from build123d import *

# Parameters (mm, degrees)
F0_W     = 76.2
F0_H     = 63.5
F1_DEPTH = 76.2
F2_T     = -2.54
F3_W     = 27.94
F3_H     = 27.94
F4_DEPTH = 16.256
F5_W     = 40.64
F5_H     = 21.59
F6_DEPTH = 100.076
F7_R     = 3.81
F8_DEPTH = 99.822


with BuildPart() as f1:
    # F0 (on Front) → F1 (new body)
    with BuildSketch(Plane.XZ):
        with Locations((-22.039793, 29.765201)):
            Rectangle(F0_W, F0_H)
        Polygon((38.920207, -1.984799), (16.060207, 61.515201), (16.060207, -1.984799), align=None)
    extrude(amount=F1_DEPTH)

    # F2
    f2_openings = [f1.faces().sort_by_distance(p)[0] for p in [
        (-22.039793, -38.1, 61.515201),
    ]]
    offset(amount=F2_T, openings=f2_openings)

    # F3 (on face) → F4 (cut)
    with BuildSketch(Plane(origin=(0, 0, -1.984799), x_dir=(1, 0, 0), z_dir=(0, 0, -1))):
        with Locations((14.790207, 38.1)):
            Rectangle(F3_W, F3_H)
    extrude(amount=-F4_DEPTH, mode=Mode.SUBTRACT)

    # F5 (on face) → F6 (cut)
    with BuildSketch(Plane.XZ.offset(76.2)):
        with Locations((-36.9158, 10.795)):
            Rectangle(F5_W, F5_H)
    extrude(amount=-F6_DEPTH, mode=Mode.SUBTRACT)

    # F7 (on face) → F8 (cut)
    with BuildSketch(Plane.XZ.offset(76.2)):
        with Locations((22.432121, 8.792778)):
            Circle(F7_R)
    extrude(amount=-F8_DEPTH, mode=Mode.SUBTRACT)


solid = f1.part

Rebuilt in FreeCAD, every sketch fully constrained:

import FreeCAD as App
import Part
import Sketcher
Q = App.Units.Quantity


def faces_at(feature, points):
    """Names of the faces that lie closest to the given points."""
    faces = feature.Shape.Faces
    near = lambda p: min(range(len(faces)), key=lambda i: faces[i].distToShape(Part.Vertex(*p))[0])
    return sorted({f"Face{near(p) + 1}" for p in points})

doc = App.newDocument("Part")
body = doc.addObject("PartDesign::Body", "Body")

sketch1 = body.newObject("Sketcher::SketchObject", "Sketch")
sketch1.AttachmentSupport = (doc.getObject("XZ_Plane"), [""])
sketch1.MapMode = "FlatFace"
sketch1.addGeometry([
    Part.LineSegment(App.Vector(-60.139793, 61.515201, 0), App.Vector(-60.139793, -1.984799, 0)),
    Part.LineSegment(App.Vector(-60.139793, -1.984799, 0), App.Vector(38.920207, -1.984799, 0)),
    Part.LineSegment(App.Vector(38.920207, -1.984799, 0), App.Vector(16.060207, 61.515201, 0)),
    Part.LineSegment(App.Vector(16.060207, 61.515201, 0), App.Vector(-60.139793, 61.515201, 0)),
], False)
sketch1.addConstraint([
    Sketcher.Constraint("Coincident", 0, 2, 1, 1),
    Sketcher.Constraint("Coincident", 1, 2, 2, 1),
    Sketcher.Constraint("Coincident", 2, 2, 3, 1),
    Sketcher.Constraint("Coincident", 3, 2, 0, 1),
    Sketcher.Constraint("Vertical", 0),
    Sketcher.Constraint("Horizontal", 1),
    Sketcher.Constraint("Horizontal", 3),
    Sketcher.Constraint("DistanceX", 3, 2, 3, 1, Q("3 in")),
    Sketcher.Constraint("DistanceX", 1, 1, 1, 2, Q("3.9 in")),
    Sketcher.Constraint("DistanceY", 0, 2, 0, 1, Q("2.5 in")),
    Sketcher.Constraint("DistanceY", 0, 2, -1, 1, 1.984799),
    Sketcher.Constraint("DistanceX", 0, 2, -1, 1, 60.139793),
])
pad1 = body.newObject("PartDesign::Pad", "Pad")
pad1.Profile = sketch1
pad1.Length = Q("3 in")
doc.recompute()

thickness = body.newObject("PartDesign::Thickness", "Thickness")
thickness.Base = (pad1, faces_at(pad1, [(-22.04, -38.1, 61.515)]))
thickness.Value = Q("0.1 in")
thickness.Reversed = True
thickness.Join = "Arc"

sketch2 = body.newObject("Sketcher::SketchObject", "Sketch001")
sketch2.AttachmentSupport = (doc.getObject("XY_Plane"), [""])
sketch2.MapMode = "FlatFace"
sketch2.AttachmentOffset = App.Placement(App.Vector(0, 0, -1.984799), App.Rotation())
sketch2.addGeometry([
    Part.LineSegment(App.Vector(0.820207, -52.07, 0), App.Vector(0.820207, -24.13, 0)),
    Part.LineSegment(App.Vector(0.820207, -24.13, 0), App.Vector(28.760207, -24.13, 0)),
    Part.LineSegment(App.Vector(28.760207, -24.13, 0), App.Vector(28.760207, -52.07, 0)),
    Part.LineSegment(App.Vector(28.760207, -52.07, 0), App.Vector(0.820207, -52.07, 0)),
], False)
sketch2.addConstraint([
    Sketcher.Constraint("Coincident", 0, 2, 1, 1),
    Sketcher.Constraint("Coincident", 1, 2, 2, 1),
    Sketcher.Constraint("Coincident", 2, 2, 3, 1),
    Sketcher.Constraint("Coincident", 3, 2, 0, 1),
    Sketcher.Constraint("Vertical", 0),
    Sketcher.Constraint("Horizontal", 1),
    Sketcher.Constraint("Vertical", 2),
    Sketcher.Constraint("Horizontal", 3),
    Sketcher.Constraint("Equal", 3, 0),
    Sketcher.Constraint("DistanceX", 1, 1, 1, 2, Q("1.1 in")),
    Sketcher.Constraint("DistanceY", 0, 2, -1, 1, Q("0.95 in")),
    Sketcher.Constraint("DistanceX", -1, 1, 0, 2, 0.820207),
])
pocket1 = body.newObject("PartDesign::Pocket", "Pocket")
pocket1.Profile = sketch2
pocket1.Length = Q("0.64 in")
pocket1.Reversed = True

sketch3 = body.newObject("Sketcher::SketchObject", "Sketch002")
sketch3.AttachmentSupport = (doc.getObject("XZ_Plane"), [""])
sketch3.MapMode = "FlatFace"
sketch3.AttachmentOffset = App.Placement(App.Vector(0, 0, 3 * 25.4), App.Rotation())
sketch3.addGeometry([
    Part.LineSegment(App.Vector(-57.2358, 21.59, 0), App.Vector(-57.2358, 0, 0)),
    Part.LineSegment(App.Vector(-57.2358, 0, 0), App.Vector(-16.5958, 0, 0)),
    Part.LineSegment(App.Vector(-16.5958, 0, 0), App.Vector(-16.5958, 21.59, 0)),
    Part.LineSegment(App.Vector(-16.5958, 21.59, 0), App.Vector(-57.2358, 21.59, 0)),
], False)
sketch3.addConstraint([
    Sketcher.Constraint("Coincident", 0, 2, 1, 1),
    Sketcher.Constraint("Coincident", 1, 2, 2, 1),
    Sketcher.Constraint("Coincident", 2, 2, 3, 1),
    Sketcher.Constraint("Coincident", 3, 2, 0, 1),
    Sketcher.Constraint("Vertical", 0),
    Sketcher.Constraint("Horizontal", 1),
    Sketcher.Constraint("Vertical", 2),
    Sketcher.Constraint("Horizontal", 3),
    Sketcher.Constraint("PointOnObject", 0, 2, -1),
    Sketcher.Constraint("DistanceX", 1, 1, 1, 2, Q("1.6 in")),
    Sketcher.Constraint("DistanceY", 0, 2, 0, 1, Q("0.85 in")),
    Sketcher.Constraint("DistanceX", 0, 2, -1, 1, 57.2358),
])
pocket2 = body.newObject("PartDesign::Pocket", "Pocket001")
pocket2.Profile = sketch3
pocket2.Length = Q("3.94 in")

sketch4 = body.newObject("Sketcher::SketchObject", "Sketch003")
sketch4.AttachmentSupport = (doc.getObject("XZ_Plane"), [""])
sketch4.MapMode = "FlatFace"
sketch4.AttachmentOffset = App.Placement(App.Vector(0, 0, 3 * 25.4), App.Rotation())
sketch4.addGeometry(Part.Circle(App.Vector(22.432121, 8.792778, 0), App.Vector(0, 0, 1), 3.81), False)
sketch4.addConstraint([
    Sketcher.Constraint("Diameter", 0, Q("0.3 in")),
    Sketcher.Constraint("DistanceX", -1, 1, 0, 3, 22.432121),
    Sketcher.Constraint("DistanceY", -1, 1, 0, 3, 8.792778),
])
pocket3 = body.newObject("PartDesign::Pocket", "Pocket002")
pocket3.Profile = sketch4
pocket3.Length = Q("3.93 in")

doc.recompute()
